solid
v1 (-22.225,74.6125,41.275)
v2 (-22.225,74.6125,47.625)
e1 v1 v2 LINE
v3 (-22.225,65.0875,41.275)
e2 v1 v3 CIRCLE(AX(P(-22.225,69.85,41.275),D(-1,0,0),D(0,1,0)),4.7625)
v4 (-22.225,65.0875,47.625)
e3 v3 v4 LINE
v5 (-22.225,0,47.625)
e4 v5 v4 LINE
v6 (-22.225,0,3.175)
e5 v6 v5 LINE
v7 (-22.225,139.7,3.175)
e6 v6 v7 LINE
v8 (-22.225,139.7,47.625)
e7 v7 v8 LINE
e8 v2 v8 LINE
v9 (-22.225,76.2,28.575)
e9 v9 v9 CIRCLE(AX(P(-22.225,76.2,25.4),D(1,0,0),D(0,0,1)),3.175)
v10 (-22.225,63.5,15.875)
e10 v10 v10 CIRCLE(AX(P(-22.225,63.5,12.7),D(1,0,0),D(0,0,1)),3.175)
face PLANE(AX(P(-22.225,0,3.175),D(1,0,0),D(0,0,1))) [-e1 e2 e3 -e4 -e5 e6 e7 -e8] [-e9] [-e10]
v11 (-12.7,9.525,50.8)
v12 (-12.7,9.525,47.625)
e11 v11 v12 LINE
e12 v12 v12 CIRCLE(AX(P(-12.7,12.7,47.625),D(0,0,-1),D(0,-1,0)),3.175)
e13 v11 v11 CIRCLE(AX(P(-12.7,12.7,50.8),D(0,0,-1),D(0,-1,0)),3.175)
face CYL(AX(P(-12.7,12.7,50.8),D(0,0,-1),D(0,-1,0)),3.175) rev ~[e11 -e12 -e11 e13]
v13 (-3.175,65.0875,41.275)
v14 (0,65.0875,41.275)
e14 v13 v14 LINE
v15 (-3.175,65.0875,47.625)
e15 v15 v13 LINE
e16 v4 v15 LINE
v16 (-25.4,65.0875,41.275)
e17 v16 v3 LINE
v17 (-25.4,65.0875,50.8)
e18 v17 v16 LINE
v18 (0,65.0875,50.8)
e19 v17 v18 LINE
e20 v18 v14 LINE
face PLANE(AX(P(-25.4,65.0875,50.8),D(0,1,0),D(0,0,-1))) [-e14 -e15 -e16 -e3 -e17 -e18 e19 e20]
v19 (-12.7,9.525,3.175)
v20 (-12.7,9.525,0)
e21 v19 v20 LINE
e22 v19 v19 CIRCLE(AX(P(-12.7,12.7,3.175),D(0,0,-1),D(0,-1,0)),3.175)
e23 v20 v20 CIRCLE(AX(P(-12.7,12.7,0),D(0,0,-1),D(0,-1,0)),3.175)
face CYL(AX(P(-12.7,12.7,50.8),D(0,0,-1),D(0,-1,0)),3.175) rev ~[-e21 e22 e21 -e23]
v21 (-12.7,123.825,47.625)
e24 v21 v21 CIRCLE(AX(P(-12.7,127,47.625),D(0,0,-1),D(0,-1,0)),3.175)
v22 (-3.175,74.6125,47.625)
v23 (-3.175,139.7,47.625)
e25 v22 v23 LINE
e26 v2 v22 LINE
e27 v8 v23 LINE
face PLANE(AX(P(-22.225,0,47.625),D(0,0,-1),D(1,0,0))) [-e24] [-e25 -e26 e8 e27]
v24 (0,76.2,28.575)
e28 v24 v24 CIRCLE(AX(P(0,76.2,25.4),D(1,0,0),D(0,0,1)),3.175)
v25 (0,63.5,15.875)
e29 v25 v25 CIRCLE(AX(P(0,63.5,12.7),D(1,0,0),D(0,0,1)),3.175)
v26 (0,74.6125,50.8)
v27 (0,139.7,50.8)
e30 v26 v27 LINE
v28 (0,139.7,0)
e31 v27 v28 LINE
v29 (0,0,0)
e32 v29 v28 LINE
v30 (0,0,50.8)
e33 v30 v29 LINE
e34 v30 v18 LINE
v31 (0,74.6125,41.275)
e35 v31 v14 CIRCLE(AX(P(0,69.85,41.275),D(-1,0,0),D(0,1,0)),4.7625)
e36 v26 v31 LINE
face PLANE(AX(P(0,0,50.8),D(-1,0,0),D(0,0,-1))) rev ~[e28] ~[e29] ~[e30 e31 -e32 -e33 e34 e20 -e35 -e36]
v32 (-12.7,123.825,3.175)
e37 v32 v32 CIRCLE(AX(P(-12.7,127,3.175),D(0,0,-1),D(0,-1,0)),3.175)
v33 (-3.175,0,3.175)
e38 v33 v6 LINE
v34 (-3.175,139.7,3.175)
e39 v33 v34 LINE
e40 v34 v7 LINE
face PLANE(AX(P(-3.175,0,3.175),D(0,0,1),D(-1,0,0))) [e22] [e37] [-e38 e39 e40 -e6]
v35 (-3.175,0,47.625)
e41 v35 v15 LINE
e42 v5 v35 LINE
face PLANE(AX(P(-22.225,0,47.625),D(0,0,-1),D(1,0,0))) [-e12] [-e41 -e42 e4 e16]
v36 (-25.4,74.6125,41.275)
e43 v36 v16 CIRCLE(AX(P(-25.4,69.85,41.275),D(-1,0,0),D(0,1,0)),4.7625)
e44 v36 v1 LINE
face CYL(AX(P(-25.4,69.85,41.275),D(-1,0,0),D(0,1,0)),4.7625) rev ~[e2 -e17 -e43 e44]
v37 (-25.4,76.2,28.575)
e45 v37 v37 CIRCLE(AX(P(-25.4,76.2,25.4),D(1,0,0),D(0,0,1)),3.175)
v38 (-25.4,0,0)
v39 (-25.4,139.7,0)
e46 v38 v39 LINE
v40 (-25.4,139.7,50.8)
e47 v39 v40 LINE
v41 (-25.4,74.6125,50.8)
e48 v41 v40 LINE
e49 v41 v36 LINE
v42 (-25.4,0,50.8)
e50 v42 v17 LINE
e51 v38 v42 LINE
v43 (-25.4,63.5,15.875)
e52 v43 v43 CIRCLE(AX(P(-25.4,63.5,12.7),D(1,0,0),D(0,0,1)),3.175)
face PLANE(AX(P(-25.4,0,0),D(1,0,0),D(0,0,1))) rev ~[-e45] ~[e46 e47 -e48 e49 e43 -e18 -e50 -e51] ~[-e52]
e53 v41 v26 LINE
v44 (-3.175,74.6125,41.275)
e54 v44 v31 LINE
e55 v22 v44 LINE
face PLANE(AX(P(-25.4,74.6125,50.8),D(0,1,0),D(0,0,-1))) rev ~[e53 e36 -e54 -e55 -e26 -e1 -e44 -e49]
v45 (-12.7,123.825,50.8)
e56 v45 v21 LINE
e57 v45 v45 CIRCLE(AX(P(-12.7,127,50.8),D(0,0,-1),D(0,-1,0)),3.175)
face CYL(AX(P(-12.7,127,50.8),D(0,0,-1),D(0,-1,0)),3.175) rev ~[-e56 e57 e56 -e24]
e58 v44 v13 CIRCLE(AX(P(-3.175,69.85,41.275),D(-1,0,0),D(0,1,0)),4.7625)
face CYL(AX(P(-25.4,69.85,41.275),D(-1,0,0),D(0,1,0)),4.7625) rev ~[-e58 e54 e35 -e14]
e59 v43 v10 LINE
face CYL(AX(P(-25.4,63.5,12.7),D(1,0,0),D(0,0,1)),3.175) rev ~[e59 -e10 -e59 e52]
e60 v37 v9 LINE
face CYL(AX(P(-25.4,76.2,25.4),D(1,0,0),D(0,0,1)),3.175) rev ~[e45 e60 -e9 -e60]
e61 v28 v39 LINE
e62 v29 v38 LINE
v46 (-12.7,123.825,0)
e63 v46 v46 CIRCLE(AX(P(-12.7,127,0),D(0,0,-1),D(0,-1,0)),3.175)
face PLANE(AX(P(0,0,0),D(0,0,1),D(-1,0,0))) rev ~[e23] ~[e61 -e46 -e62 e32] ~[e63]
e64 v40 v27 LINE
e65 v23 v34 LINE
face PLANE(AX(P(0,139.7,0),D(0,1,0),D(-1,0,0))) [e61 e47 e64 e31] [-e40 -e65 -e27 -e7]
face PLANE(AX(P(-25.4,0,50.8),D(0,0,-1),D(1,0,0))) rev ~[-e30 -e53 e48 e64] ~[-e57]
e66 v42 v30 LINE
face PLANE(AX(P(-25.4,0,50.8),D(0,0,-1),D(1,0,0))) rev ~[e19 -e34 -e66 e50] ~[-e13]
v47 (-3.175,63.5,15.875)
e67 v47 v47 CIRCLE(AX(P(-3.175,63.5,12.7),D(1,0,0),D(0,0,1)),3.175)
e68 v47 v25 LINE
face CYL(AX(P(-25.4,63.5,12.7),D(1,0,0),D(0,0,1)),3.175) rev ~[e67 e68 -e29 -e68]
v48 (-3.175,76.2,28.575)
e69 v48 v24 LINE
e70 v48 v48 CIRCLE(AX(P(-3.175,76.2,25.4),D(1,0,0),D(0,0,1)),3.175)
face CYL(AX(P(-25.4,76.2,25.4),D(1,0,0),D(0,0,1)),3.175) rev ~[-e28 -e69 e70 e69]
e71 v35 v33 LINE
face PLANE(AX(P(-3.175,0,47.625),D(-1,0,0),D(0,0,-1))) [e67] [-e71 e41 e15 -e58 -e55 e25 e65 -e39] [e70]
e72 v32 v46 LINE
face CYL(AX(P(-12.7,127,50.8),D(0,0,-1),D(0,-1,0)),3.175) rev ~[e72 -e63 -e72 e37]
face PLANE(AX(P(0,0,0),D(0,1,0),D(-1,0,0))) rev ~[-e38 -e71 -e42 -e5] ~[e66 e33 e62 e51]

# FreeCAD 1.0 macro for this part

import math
import FreeCAD as App
import Part
import Sketcher
Q = App.Units.Quantity

doc = App.newDocument("Part")
body = doc.addObject("PartDesign::Body", "Body")

sketch1 = body.newObject("Sketcher::SketchObject", "Sketch")
sketch1.AttachmentSupport = (doc.getObject("XZ_Plane"), [""])
sketch1.MapMode = "FlatFace"
sketch1.addGeometry(Part.LineSegment(App.Vector(0, 51, 0), App.Vector(0, 0, 0)), False)
sketch1.addGeometry(Part.LineSegment(App.Vector(0, 0, 0), App.Vector(-25, 0, 0)), False)
sketch1.addGeometry(Part.LineSegment(App.Vector(-25, 0, 0), App.Vector(-25, 51, 0)), False)
sketch1.addGeometry(Part.LineSegment(App.Vector(-25, 51, 0), App.Vector(0, 51, 0)), False)
sketch1.addGeometry(Part.LineSegment(App.Vector(-22, 3, 0), App.Vector(-3, 3, 0)), False)
sketch1.addGeometry(Part.LineSegment(App.Vector(-3, 3, 0), App.Vector(-3, 48, 0)), False)
sketch1.addGeometry(Part.LineSegment(App.Vector(-3, 48, 0), App.Vector(-22, 48, 0)), False)
sketch1.addGeometry(Part.LineSegment(App.Vector(-22, 48, 0), App.Vector(-22, 3, 0)), False)
sketch1.addConstraint(Sketcher.Constraint("Coincident", 0, 2, 1, 1))
sketch1.addConstraint(Sketcher.Constraint("Coincident", 1, 2, 2, 1))
sketch1.addConstraint(Sketcher.Constraint("Coincident", 2, 2, 3, 1))
sketch1.addConstraint(Sketcher.Constraint("Coincident", 3, 2, 0, 1))
sketch1.addConstraint(Sketcher.Constraint("Coincident", 4, 2, 5, 1))
sketch1.addConstraint(Sketcher.Constraint("Coincident", 5, 2, 6, 1))
sketch1.addConstraint(Sketcher.Constraint("Coincident", 6, 2, 7, 1))
sketch1.addConstraint(Sketcher.Constraint("Coincident", 7, 2, 4, 1))
sketch1.addConstraint(Sketcher.Constraint("Vertical", 0))
sketch1.addConstraint(Sketcher.Constraint("Horizontal", 1))
sketch1.addConstraint(Sketcher.Constraint("Vertical", 2))
sketch1.addConstraint(Sketcher.Constraint("Horizontal", 3))
sketch1.addConstraint(Sketcher.Constraint("Horizontal", 4))
sketch1.addConstraint(Sketcher.Constraint("Vertical", 5))
sketch1.addConstraint(Sketcher.Constraint("Horizontal", 6))
sketch1.addConstraint(Sketcher.Constraint("Vertical", 7))
sketch1.addConstraint(Sketcher.Constraint("Coincident", 0, 2, -1, 1))
sketch1.addConstraint(Sketcher.Constraint("DistanceX", 1, 2, 1, 1, Q("1 in")))
sketch1.addConstraint(Sketcher.Constraint("DistanceY", 0, 2, 0, 1, Q("2 in")))
sketch1.addConstraint(Sketcher.Constraint("DistanceX", 4, 1, 4, 2, Q("0.75 in")))
sketch1.addConstraint(Sketcher.Constraint("DistanceY", 5, 1, 5, 2, Q("1.75 in")))
sketch1.addConstraint(Sketcher.Constraint("DistanceX", 4, 2, -1, 1, Q("0.125 in")))
sketch1.addConstraint(Sketcher.Constraint("DistanceY", -1, 1, 4, 2, Q("0.125 in")))
pad1 = body.newObject("PartDesign::Pad", "Pad")
pad1.Profile = sketch1
pad1.Length = Q("5.5 in")
pad1.Reversed = True

sketch2 = body.newObject("Sketcher::SketchObject", "Sketch001")
sketch2.AttachmentSupport = (doc.getObject("XY_Plane"), [""])
sketch2.MapMode = "FlatFace"
sketch2.AttachmentOffset = App.Placement(App.Vector(0, 0, 2 * 25.4), App.Rotation())
sketch2.addGeometry(Part.Circle(App.Vector(-12.7, 127, 0), App.Vector(0, 0, 1), 3.2), False)
sketch2.addGeometry(Part.Circle(App.Vector(-12.7, 12.7, 0), App.Vector(0, 0, 1), 3.2), False)
sketch2.addConstraint(Sketcher.Constraint("Equal", 0, 1))
sketch2.addConstraint(Sketcher.Constraint("Vertical", 0, 3, 1, 3))
sketch2.addConstraint(Sketcher.Constraint("Diameter", 0, Q("0.25 in")))
sketch2.addConstraint(Sketcher.Constraint("DistanceY", -1, 1, 0, 3, Q("5 in")))
sketch2.addConstraint(Sketcher.Constraint("DistanceX", 0, 3, -1, 1, Q("0.5 in")))
sketch2.addConstraint(Sketcher.Constraint("DistanceY", -1, 1, 1, 3, Q("0.5 in")))
doc.recompute()
hole = body.newObject("PartDesign::Hole", "Hole")
hole.Profile = sketch2
hole.ThreadType = "None"
hole.Diameter = Q("0.25 in")
hole.DepthType = "ThroughAll"

sketch3 = body.newObject("Sketcher::SketchObject", "Sketch002")
sketch3.AttachmentSupport = (doc.getObject("YZ_Plane"), [""])
sketch3.MapMode = "FlatFace"
sketch3.AttachmentOffset = App.Placement(App.Vector(0, 0, -1 * 25.4), App.Rotation())
sketch3.addGeometry(Part.LineSegment(App.Vector(65.1, 41.3, 0), App.Vector(65.1, 50.8, 0)), False)
sketch3.addGeometry(Part.LineSegment(App.Vector(65.1, 50.8, 0), App.Vector(74.6, 50.8, 0)), False)
sketch3.addGeometry(Part.LineSegment(App.Vector(74.6, 50.8, 0), App.Vector(74.6, 41.3, 0)), False)
sketch3.addGeometry(Part.ArcOfCircle(Part.Circle(App.Vector(69.8, 41.3, 0), App.Vector(0, 0, 1), 4.8), math.radians(180), math.radians(360)), False)
sketch3.addConstraint(Sketcher.Constraint("Coincident", 0, 2, 1, 1))
sketch3.addConstraint(Sketcher.Constraint("Coincident", 1, 2, 2, 1))
sketch3.addConstraint(Sketcher.Constraint("Tangent", 2, 2, 3, 2))
sketch3.addConstraint(Sketcher.Constraint("Tangent", 3, 1, 0, 1))
sketch3.addConstraint(Sketcher.Constraint("Vertical", 0))
sketch3.addConstraint(Sketcher.Constraint("Horizontal", 1))
sketch3.addConstraint(Sketcher.Constraint("Vertical", 2))
sketch3.addConstraint(Sketcher.Constraint("Equal", 1, 0))
sketch3.addConstraint(Sketcher.Constraint("Radius", 3, Q("0.1875 in")))
sketch3.addConstraint(Sketcher.Constraint("DistanceX", -1, 1, 3, 3, Q("2.75 in")))
sketch3.addConstraint(Sketcher.Constraint("DistanceY", -1, 1, 0, 2, Q("2 in")))
pocket1 = body.newObject("PartDesign::Pocket", "Pocket")
pocket1.Profile = sketch3
pocket1.Length = Q("6.125 in")
pocket1.Reversed = True

sketch4 = body.newObject("Sketcher::SketchObject", "Sketch003")
sketch4.AttachmentSupport = (doc.getObject("YZ_Plane"), [""])
sketch4.MapMode = "FlatFace"
sketch4.AttachmentOffset = App.Placement(App.Vector(0, 0, -1 * 25.4), App.Rotation())
sketch4.addGeometry(Part.Circle(App.Vector(63.5, 12.7, 0), App.Vector(0, 0, 1), 3.2), False)
sketch4.addGeometry(Part.Circle(App.Vector(76.2, 25.4, 0), App.Vector(0, 0, 1), 3.2), False)
sketch4.addConstraint(Sketcher.Constraint("Equal", 0, 1))
sketch4.addConstraint(Sketcher.Constraint("Diameter", 0, Q("0.25 in")))
sketch4.addConstraint(Sketcher.Constraint("DistanceX", -1, 1, 1, 3, Q("3 in")))
sketch4.addConstraint(Sketcher.Constraint("DistanceY", -1, 1, 1, 3, Q("1 in")))
sketch4.addConstraint(Sketcher.Constraint("DistanceX", -1, 1, 0, 3, Q("2.5 in")))
sketch4.addConstraint(Sketcher.Constraint("DistanceY", -1, 1, 0, 3, Q("0.5 in")))
doc.recompute()
hole2 = body.newObject("PartDesign::Hole", "Hole001")
hole2.Profile = sketch4
hole2.ThreadType = "None"
hole2.Diameter = Q("0.25 in")
hole2.DepthType = "ThroughAll"
hole2.Reversed = True

doc.recompute()
